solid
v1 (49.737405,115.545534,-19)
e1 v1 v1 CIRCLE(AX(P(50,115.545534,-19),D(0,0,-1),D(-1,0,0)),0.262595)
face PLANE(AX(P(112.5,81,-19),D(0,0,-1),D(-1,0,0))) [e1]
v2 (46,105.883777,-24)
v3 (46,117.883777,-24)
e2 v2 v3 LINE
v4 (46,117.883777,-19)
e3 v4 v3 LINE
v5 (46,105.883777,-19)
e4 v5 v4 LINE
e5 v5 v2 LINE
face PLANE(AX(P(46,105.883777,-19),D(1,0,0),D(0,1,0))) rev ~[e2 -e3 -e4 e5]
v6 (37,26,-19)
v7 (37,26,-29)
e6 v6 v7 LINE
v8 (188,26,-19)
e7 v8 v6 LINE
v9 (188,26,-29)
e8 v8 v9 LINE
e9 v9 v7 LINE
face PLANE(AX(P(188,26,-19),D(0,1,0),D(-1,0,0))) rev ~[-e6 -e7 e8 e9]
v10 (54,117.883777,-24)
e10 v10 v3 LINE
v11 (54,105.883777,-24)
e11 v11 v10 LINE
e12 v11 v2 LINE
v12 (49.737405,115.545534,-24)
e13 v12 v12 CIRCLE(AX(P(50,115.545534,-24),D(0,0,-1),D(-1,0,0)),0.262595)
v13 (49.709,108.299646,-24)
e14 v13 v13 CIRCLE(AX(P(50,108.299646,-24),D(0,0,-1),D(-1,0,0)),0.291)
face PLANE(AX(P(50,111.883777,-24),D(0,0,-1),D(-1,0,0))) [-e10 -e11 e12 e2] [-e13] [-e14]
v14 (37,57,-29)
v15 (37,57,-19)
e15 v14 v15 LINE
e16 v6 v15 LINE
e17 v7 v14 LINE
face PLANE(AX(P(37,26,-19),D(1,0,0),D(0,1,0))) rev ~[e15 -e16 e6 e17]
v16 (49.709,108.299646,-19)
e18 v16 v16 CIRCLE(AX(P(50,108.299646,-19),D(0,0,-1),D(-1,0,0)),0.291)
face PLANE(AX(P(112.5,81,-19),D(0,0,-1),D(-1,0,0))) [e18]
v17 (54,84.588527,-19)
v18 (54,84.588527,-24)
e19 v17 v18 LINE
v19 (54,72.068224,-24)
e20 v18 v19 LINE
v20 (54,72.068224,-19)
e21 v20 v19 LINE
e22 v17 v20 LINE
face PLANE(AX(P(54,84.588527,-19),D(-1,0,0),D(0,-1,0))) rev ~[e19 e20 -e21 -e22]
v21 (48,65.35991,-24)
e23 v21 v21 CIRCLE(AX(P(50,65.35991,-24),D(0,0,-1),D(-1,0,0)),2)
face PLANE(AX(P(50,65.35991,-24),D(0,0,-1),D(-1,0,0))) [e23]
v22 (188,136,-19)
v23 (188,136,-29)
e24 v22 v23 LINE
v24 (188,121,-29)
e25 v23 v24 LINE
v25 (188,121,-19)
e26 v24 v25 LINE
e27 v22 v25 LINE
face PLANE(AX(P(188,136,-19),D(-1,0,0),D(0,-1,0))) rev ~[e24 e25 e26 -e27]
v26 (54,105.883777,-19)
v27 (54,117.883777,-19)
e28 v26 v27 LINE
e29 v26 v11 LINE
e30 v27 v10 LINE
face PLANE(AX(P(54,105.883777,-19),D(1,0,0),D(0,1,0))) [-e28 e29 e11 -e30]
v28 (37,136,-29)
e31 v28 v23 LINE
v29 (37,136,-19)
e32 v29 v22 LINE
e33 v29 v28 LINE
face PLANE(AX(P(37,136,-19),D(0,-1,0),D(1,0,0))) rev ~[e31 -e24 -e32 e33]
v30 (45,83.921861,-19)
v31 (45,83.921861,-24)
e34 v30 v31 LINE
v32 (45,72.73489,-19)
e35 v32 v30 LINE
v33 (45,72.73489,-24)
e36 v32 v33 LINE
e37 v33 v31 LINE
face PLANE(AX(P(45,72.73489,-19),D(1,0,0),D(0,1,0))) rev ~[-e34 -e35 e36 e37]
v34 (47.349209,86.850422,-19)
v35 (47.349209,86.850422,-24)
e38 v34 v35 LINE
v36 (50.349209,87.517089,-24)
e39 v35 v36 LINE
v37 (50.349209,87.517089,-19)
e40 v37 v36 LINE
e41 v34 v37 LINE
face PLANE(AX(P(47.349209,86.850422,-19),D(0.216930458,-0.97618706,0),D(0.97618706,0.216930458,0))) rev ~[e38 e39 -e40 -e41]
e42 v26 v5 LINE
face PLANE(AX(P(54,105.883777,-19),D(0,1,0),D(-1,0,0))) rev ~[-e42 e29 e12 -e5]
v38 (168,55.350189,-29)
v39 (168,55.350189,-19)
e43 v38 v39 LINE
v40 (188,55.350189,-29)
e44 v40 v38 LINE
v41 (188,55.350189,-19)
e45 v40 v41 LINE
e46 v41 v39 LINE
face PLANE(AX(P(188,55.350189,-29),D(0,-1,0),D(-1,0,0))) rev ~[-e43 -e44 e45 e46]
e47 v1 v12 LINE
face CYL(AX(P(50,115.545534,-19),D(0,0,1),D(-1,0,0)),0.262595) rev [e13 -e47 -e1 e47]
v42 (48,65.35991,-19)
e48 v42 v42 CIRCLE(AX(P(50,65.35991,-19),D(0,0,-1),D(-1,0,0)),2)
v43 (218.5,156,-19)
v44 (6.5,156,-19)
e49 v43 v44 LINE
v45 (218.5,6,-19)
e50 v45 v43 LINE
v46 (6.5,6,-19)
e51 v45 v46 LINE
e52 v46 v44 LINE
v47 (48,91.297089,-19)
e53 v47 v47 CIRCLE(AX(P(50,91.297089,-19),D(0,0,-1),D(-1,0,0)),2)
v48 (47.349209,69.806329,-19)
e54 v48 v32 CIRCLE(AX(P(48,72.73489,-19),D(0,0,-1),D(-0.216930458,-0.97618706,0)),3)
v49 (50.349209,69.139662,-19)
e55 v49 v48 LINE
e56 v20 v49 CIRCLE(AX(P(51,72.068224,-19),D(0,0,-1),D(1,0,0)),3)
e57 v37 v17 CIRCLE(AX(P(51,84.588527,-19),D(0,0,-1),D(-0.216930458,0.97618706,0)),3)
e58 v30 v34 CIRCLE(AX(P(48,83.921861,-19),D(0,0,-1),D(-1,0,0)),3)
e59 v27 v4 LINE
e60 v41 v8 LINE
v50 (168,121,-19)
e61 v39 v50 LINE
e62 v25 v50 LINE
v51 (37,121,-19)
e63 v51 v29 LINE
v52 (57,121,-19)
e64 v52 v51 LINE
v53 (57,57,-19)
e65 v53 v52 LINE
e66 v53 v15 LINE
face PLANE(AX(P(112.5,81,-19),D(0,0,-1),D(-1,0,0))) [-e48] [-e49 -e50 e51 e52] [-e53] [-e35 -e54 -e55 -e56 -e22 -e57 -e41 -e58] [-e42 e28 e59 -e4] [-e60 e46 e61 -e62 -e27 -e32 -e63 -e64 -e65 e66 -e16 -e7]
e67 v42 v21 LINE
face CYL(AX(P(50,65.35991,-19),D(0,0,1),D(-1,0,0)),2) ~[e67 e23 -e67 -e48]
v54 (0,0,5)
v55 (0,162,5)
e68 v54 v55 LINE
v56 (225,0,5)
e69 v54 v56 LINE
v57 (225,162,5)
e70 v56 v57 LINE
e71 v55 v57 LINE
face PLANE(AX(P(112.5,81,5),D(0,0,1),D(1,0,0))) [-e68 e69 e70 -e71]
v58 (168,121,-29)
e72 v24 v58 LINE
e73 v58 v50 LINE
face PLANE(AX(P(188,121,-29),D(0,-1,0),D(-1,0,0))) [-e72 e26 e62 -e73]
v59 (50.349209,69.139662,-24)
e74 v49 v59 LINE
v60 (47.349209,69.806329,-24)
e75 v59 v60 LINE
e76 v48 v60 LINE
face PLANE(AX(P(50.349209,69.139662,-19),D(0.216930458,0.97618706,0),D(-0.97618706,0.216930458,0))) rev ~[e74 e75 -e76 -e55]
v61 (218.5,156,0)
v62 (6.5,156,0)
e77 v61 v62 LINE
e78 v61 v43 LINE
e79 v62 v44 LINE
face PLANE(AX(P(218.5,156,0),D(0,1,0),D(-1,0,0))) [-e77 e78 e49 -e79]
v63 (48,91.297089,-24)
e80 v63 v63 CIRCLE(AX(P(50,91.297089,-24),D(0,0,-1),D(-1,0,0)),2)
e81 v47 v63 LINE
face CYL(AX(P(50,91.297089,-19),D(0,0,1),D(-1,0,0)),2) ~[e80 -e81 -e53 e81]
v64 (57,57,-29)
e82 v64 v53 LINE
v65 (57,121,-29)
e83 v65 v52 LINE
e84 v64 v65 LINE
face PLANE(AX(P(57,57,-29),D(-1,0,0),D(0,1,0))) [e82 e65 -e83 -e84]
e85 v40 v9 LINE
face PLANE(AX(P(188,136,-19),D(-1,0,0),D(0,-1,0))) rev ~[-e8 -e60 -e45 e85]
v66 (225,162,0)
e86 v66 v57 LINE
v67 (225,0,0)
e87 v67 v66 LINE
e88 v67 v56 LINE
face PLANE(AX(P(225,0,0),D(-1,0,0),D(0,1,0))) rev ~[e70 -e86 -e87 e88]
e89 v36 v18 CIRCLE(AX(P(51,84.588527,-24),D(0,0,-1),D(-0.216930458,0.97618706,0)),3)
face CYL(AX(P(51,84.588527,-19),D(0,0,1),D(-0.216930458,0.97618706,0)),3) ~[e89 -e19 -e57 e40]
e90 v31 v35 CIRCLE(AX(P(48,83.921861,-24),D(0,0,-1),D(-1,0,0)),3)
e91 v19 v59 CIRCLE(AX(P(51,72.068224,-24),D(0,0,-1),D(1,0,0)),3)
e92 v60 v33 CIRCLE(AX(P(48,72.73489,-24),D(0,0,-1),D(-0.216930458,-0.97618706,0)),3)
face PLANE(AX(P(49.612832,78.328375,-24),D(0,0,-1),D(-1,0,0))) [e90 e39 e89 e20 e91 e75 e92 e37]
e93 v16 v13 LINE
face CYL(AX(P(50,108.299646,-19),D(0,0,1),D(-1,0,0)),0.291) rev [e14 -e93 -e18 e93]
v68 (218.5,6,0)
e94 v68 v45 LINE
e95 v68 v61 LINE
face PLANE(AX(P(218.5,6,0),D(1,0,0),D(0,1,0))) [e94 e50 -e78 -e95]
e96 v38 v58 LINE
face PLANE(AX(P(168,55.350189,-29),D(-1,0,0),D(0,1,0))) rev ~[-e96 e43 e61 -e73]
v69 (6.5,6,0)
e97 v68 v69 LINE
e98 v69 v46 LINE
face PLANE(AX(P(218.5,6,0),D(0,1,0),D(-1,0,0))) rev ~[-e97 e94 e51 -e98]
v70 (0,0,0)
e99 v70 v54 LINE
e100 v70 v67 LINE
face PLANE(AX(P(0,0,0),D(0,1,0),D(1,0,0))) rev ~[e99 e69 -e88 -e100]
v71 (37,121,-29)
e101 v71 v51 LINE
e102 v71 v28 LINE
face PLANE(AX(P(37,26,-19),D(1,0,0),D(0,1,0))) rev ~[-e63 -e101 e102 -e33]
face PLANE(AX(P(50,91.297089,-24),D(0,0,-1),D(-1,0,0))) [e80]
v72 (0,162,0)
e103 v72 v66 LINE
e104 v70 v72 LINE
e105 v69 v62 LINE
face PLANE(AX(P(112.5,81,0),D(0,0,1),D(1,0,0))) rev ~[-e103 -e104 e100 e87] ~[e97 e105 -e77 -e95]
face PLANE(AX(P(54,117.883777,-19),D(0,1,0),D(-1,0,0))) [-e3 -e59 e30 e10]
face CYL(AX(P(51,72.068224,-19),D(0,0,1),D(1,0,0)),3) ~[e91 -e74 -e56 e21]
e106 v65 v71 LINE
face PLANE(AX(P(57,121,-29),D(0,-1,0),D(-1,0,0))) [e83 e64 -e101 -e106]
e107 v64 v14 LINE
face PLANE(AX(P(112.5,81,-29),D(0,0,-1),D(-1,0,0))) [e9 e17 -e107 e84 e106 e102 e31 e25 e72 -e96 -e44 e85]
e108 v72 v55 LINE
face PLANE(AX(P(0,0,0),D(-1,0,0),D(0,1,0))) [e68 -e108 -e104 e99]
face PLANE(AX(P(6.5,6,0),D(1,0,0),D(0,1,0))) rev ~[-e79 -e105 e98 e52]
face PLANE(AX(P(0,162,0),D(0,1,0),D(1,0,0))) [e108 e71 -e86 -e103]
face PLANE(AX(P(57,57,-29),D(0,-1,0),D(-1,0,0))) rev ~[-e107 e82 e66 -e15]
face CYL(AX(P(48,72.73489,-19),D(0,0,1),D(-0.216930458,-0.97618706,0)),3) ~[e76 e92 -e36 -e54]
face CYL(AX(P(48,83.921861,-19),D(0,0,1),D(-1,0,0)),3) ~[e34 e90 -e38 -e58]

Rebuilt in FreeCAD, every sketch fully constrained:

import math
import FreeCAD as App
import Part
import Sketcher

doc = App.newDocument("Part")
body = doc.addObject("PartDesign::Body", "Body")

# Sketch on XY plane
sketch1 = body.newObject("Sketcher::SketchObject", "Sketch")
sketch1.AttachmentSupport = (doc.getObject("XY_Plane"), [""])
sketch1.MapMode = "FlatFace"
sketch1.addGeometry([
    Part.LineSegment(App.Vector(0, 162, 0), App.Vector(0, 0, 0)),
    Part.LineSegment(App.Vector(0, 0, 0), App.Vector(225, 0, 0)),
    Part.LineSegment(App.Vector(225, 0, 0), App.Vector(225, 162, 0)),
    Part.LineSegment(App.Vector(225, 162, 0), App.Vector(0, 162, 0)),
], False)
sketch1.addConstraint([
    Sketcher.Constraint("Coincident", 0, 2, 1, 1),
    Sketcher.Constraint("Coincident", 1, 2, 2, 1),
    Sketcher.Constraint("Coincident", 2, 2, 3, 1),
    Sketcher.Constraint("Coincident", 3, 2, 0, 1),
    Sketcher.Constraint("Vertical", 0),
    Sketcher.Constraint("Horizontal", 1),
    Sketcher.Constraint("Vertical", 2),
    Sketcher.Constraint("Horizontal", 3),
    Sketcher.Constraint("Coincident", 0, 2, -1, 1),
    Sketcher.Constraint("DistanceX", 1, 1, 1, 2, 225.0),
    Sketcher.Constraint("DistanceY", 0, 2, 0, 1, 162.0),
])
pad1 = body.newObject("PartDesign::Pad", "Pad")
pad1.Profile = sketch1
pad1.Length = 5

# Sketch on XY plane
sketch2 = body.newObject("Sketcher::SketchObject", "Sketch001")
sketch2.AttachmentSupport = (doc.getObject("XY_Plane"), [""])
sketch2.MapMode = "FlatFace"
sketch2.addGeometry([
    Part.LineSegment(App.Vector(218, 156, 0), App.Vector(218, 6, 0)),
    Part.LineSegment(App.Vector(218, 6, 0), App.Vector(6, 6, 0)),
    Part.LineSegment(App.Vector(6, 6, 0), App.Vector(6, 156, 0)),
    Part.LineSegment(App.Vector(6, 156, 0), App.Vector(218, 156, 0)),
], False)
sketch2.addConstraint([
    Sketcher.Constraint("Coincident", 0, 2, 1, 1),
    Sketcher.Constraint("Coincident", 1, 2, 2, 1),
    Sketcher.Constraint("Coincident", 2, 2, 3, 1),
    Sketcher.Constraint("Coincident", 3, 2, 0, 1),
    Sketcher.Constraint("Vertical", 0),
    Sketcher.Constraint("Horizontal", 1),
    Sketcher.Constraint("Vertical", 2),
    Sketcher.Constraint("Horizontal", 3),
    Sketcher.Constraint("DistanceX", 1, 2, 1, 1, 212.0),
    Sketcher.Constraint("DistanceY", 0, 2, 0, 1, 150.0),
    Sketcher.Constraint("DistanceY", -1, 1, 0, 2, 6.0),
    Sketcher.Constraint("DistanceX", -1, 1, 0, 2, 218.5),
])
pad2 = body.newObject("PartDesign::Pad", "Pad001")
pad2.Profile = sketch2
pad2.Length = 19
pad2.Reversed = True

# Sketch on XY plane
sketch3 = body.newObject("Sketcher::SketchObject", "Sketch002")
sketch3.AttachmentSupport = (doc.getObject("XY_Plane"), [""])
sketch3.MapMode = "FlatFace"
sketch3.AttachmentOffset = App.Placement(App.Vector(0, 0, -19), App.Rotation())
sketch3.addGeometry([
    Part.LineSegment(App.Vector(188, 136, 0), App.Vector(188, 26, 0)),
    Part.LineSegment(App.Vector(188, 26, 0), App.Vector(37, 26, 0)),
    Part.LineSegment(App.Vector(37, 26, 0), App.Vector(37, 136, 0)),
    Part.LineSegment(App.Vector(37, 136, 0), App.Vector(188, 136, 0)),
], False)
sketch3.addConstraint([
    Sketcher.Constraint("Coincident", 0, 2, 1, 1),
    Sketcher.Constraint("Coincident", 1, 2, 2, 1),
    Sketcher.Constraint("Coincident", 2, 2, 3, 1),
    Sketcher.Constraint("Coincident", 3, 2, 0, 1),
    Sketcher.Constraint("Vertical", 0),
    Sketcher.Constraint("Horizontal", 1),
    Sketcher.Constraint("Vertical", 2),
    Sketcher.Constraint("Horizontal", 3),
    Sketcher.Constraint("DistanceX", 1, 2, 1, 1, 151.0),
    Sketcher.Constraint("DistanceY", 0, 2, 0, 1, 110.0),
    Sketcher.Constraint("DistanceX", -1, 1, 0, 2, 188.0),
    Sketcher.Constraint("DistanceY", -1, 1, 0, 2, 26.0),
])
pad3 = body.newObject("PartDesign::Pad", "Pad002")
pad3.Profile = sketch3
pad3.Length = 10
pad3.Reversed = True

# Sketch on XY plane
sketch4 = body.newObject("Sketcher::SketchObject", "Sketch003")
sketch4.AttachmentSupport = (doc.getObject("XY_Plane"), [""])
sketch4.MapMode = "FlatFace"
sketch4.AttachmentOffset = App.Placement(App.Vector(0, 0, -29), App.Rotation())
sketch4.addGeometry([
    Part.LineSegment(App.Vector(188, 121, 0), App.Vector(188, 55, 0)),  # 0
    Part.LineSegment(App.Vector(188, 55, 0), App.Vector(168, 55, 0)),  # 1
    Part.LineSegment(App.Vector(168, 55, 0), App.Vector(168, 121, 0)),  # 2
    Part.LineSegment(App.Vector(168, 121, 0), App.Vector(188, 121, 0)),  # 3
    Part.LineSegment(App.Vector(57, 121, 0), App.Vector(57, 57, 0)),  # 4
    Part.LineSegment(App.Vector(57, 57, 0), App.Vector(37, 57, 0)),  # 5
    Part.LineSegment(App.Vector(37, 57, 0), App.Vector(37, 121, 0)),  # 6
    Part.LineSegment(App.Vector(37, 121, 0), App.Vector(57, 121, 0)),  # 7
], False)
sketch4.addConstraint([
    Sketcher.Constraint("Coincident", 0, 2, 1, 1),
    Sketcher.Constraint("Coincident", 1, 2, 2, 1),
    Sketcher.Constraint("Coincident", 2, 2, 3, 1),
    Sketcher.Constraint("Coincident", 3, 2, 0, 1),
    Sketcher.Constraint("Coincident", 4, 2, 5, 1),
    Sketcher.Constraint("Coincident", 5, 2, 6, 1),
    Sketcher.Constraint("Coincident", 6, 2, 7, 1),
    Sketcher.Constraint("Coincident", 7, 2, 4, 1),
    Sketcher.Constraint("Vertical", 0),
    Sketcher.Constraint("Horizontal", 1),
    Sketcher.Constraint("Vertical", 2),
    Sketcher.Constraint("Horizontal", 3),
    Sketcher.Constraint("Vertical", 4),
    Sketcher.Constraint("Horizontal", 5),
    Sketcher.Constraint("Vertical", 6),
    Sketcher.Constraint("Horizontal", 7),
    Sketcher.Constraint("Horizontal", 3, 2, 6, 2),
    Sketcher.Constraint("Equal", 3, 5),
    Sketcher.Constraint("DistanceX", 1, 2, 1, 1, 20.0),
    Sketcher.Constraint("DistanceY", 4, 2, 4, 1, 64.0),
    Sketcher.Constraint("DistanceX", -1, 1, 0, 2, 188.0),
    Sketcher.Constraint("DistanceY", -1, 1, 2, 2, 121.0),
    Sketcher.Constraint("DistanceX", -1, 1, 4, 2, 57.0),
    Sketcher.Constraint("DistanceY", 0, 2, 0, 1, 65.649811),
])
pocket1 = body.newObject("PartDesign::Pocket", "Pocket")
pocket1.Profile = sketch4
pocket1.Length = 10
pocket1.Reversed = True

# Sketch on XY plane
sketch5 = body.newObject("Sketcher::SketchObject", "Sketch004")
sketch5.AttachmentSupport = (doc.getObject("XY_Plane"), [""])
sketch5.MapMode = "FlatFace"
sketch5.AttachmentOffset = App.Placement(App.Vector(0, 0, -19), App.Rotation())
sketch5.addGeometry([
    Part.Circle(App.Vector(50, 65.36, 0), App.Vector(0, 0, 1), 2),  # 0
    Part.Circle(App.Vector(50, 91.3, 0), App.Vector(0, 0, 1), 2),  # 1
    Part.LineSegment(App.Vector(54, 117.88, 0), App.Vector(54, 105.88, 0)),  # 2
    Part.LineSegment(App.Vector(54, 105.88, 0), App.Vector(46, 105.88, 0)),  # 3
    Part.LineSegment(App.Vector(46, 105.88, 0), App.Vector(46, 117.88, 0)),  # 4
    Part.LineSegment(App.Vector(46, 117.88, 0), App.Vector(54, 117.88, 0)),  # 5
    Part.Circle(App.Vector(50, 108.3, 0), App.Vector(0, 0, 1), 0.29),  # 6
    Part.Circle(App.Vector(50, 115.55, 0), App.Vector(0, 0, 1), 0.26),  # 7
    Part.LineSegment(App.Vector(54, 84.59, 0), App.Vector(54, 72.07, 0)),  # 8
    Part.ArcOfCircle(Part.Circle(App.Vector(51, 72.07, 0), App.Vector(0, 0, 1), 3), math.radians(-103), math.radians(0)),  # 9
    Part.LineSegment(App.Vector(50.35, 69.14, 0), App.Vector(47.35, 69.81, 0)),  # 10
    Part.ArcOfCircle(Part.Circle(App.Vector(48, 72.73, 0), App.Vector(0, 0, 1), 3), math.radians(-180), math.radians(-103)),  # 11
    Part.LineSegment(App.Vector(45, 72.73, 0), App.Vector(45, 83.92, 0)),  # 12
    Part.ArcOfCircle(Part.Circle(App.Vector(48, 83.92, 0), App.Vector(0, 0, 1), 3), math.radians(103), math.radians(180)),  # 13
    Part.LineSegment(App.Vector(47.35, 86.85, 0), App.Vector(50.35, 87.52, 0)),  # 14
    Part.ArcOfCircle(Part.Circle(App.Vector(51, 84.59, 0), App.Vector(0, 0, 1), 3), math.radians(0), math.radians(103)),  # 15
], False)
sketch5.addConstraint([
    Sketcher.Constraint("Coincident", 2, 2, 3, 1),
    Sketcher.Constraint("Coincident", 3, 2, 4, 1),
    Sketcher.Constraint("Coincident", 4, 2, 5, 1),
    Sketcher.Constraint("Coincident", 5, 2, 2, 1),
    Sketcher.Constraint("Tangent", 8, 2, 9, 2),
    Sketcher.Constraint("Tangent", 9, 1, 10, 1),
    Sketcher.Constraint("Tangent", 10, 2, 11, 2),
    Sketcher.Constraint("Tangent", 11, 1, 12, 1),
    Sketcher.Constraint("Tangent", 12, 2, 13, 2),
    Sketcher.Constraint("Tangent", 13, 1, 14, 1),
    Sketcher.Constraint("Tangent", 14, 2, 15, 2),
    Sketcher.Constraint("Tangent", 15, 1, 8, 1),
    Sketcher.Constraint("Vertical", 2),
    Sketcher.Constraint("Horizontal", 3),
    Sketcher.Constraint("Vertical", 4),
    Sketcher.Constraint("Horizontal", 5),
    Sketcher.Constraint("Vertical", 8),
    Sketcher.Constraint("Vertical", 12),
    Sketcher.Constraint("Equal", 0, 1),
    Sketcher.Constraint("Equal", 9, 11),
    Sketcher.Constraint("Equal", 11, 13),
    Sketcher.Constraint("Equal", 13, 15),
    Sketcher.Constraint("Vertical", 0, 3, 1, 3),
    Sketcher.Constraint("Vertical", 1, 3, 6, 3),
    Sketcher.Constraint("Vertical", 6, 3, 7, 3),
    Sketcher.Constraint("Vertical", 5, 2, 8, 2),
    Sketcher.Constraint("Vertical", 10, 2, 13, 1),
    Sketcher.Constraint("Diameter", 0, 4.0),
    Sketcher.Constraint("Radius", 9, 3.0),
    Sketcher.Constraint("DistanceX", 3, 2, 3, 1, 8.0),
    Sketcher.Constraint("DistanceY", 2, 2, 2, 1, 12.0),
    Sketcher.Constraint("Diameter", 6, 0.581999),
    Sketcher.Constraint("DistanceX", -1, 1, 0, 3, 50.0),
    Sketcher.Constraint("DistanceX", -1, 1, 9, 3, 51.0),
    Sketcher.Constraint("DistanceX", -1, 1, 11, 3, 48.0),
    Sketcher.Constraint("Diameter", 7, 0.525189),
    Sketcher.Constraint("DistanceY", 14, 2, 1, 3, 3.78),
    Sketcher.Constraint("DistanceY", 12, 1, 12, 2, 11.18697),
    Sketcher.Constraint("DistanceY", 11, 3, 1, 3, 18.562198),
    Sketcher.Constraint("DistanceY", -1, 1, 0, 3, 65.35991),
    Sketcher.Constraint("DistanceY", -1, 1, 1, 3, 91.297089),
    Sketcher.Constraint("DistanceY", 6, 3, 7, 3, 7.245889),
    Sketcher.Constraint("DistanceY", 9, 3, 7, 3, 43.477311),
    Sketcher.Constraint("DistanceY", 2, 2, 6, 3, 2.415869),
])
pad4 = body.newObject("PartDesign::Pad", "Pad003")
pad4.Profile = sketch5
pad4.Length = 5
pad4.Reversed = True

doc.recompute()
